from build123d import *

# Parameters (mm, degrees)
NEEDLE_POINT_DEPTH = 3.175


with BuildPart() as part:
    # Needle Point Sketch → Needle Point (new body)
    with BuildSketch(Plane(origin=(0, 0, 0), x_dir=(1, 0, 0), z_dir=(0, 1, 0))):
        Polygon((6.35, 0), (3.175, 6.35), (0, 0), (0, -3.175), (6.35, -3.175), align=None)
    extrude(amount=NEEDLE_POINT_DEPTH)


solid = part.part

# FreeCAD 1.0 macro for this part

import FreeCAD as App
import Part
import Sketcher
Q = App.Units.Quantity


def add_polygon(sketch, points):
    """Adds a closed chain of lines whose ends are joined by coincident constraints."""
    first, n = sketch.GeometryCount, len(points)
    for a, b in zip(points, points[1:] + points[:1]):
        sketch.addGeometry(Part.LineSegment(App.Vector(*a, 0), App.Vector(*b, 0)), False)
    for i in range(n):
        sketch.addConstraint(Sketcher.Constraint("Coincident", first + i, 2, first + (i + 1) % n, 1))

doc = App.newDocument("Part")
body = doc.addObject("PartDesign::Body", "Body")

sketch1 = body.newObject("Sketcher::SketchObject", "Sketch")
sketch1.AttachmentSupport = (doc.getObject("XZ_Plane"), [""])
sketch1.MapMode = "FlatFace"
add_polygon(sketch1, [(6.3, 0), (3.2, -6.3), (0, 0), (0, 3.2), (6.3, 3.2)])
sketch1.addConstraint([
    Sketcher.Constraint("Vertical", 2),
    Sketcher.Constraint("Horizontal", 3),
    Sketcher.Constraint("Vertical", 4),
    Sketcher.Constraint("Coincident", 1, 2, -1, 1),
    Sketcher.Constraint("PointOnObject", 4, 2, -1),
    Sketcher.Constraint("Equal", 0, 1),
    Sketcher.Constraint("DistanceX", 3, 1, 3, 2, Q("0.25 in")),
    Sketcher.Constraint("DistanceY", 2, 1, 2, 2, Q("0.125 in")),
    Sketcher.Constraint("DistanceY", 0, 2, -1, 1, Q("0.25 in")),
])
pad1 = body.newObject("PartDesign::Pad", "Pad")
pad1.Profile = sketch1
pad1.Length = Q("0.125 in")
pad1.Reversed = True

doc.recompute()
